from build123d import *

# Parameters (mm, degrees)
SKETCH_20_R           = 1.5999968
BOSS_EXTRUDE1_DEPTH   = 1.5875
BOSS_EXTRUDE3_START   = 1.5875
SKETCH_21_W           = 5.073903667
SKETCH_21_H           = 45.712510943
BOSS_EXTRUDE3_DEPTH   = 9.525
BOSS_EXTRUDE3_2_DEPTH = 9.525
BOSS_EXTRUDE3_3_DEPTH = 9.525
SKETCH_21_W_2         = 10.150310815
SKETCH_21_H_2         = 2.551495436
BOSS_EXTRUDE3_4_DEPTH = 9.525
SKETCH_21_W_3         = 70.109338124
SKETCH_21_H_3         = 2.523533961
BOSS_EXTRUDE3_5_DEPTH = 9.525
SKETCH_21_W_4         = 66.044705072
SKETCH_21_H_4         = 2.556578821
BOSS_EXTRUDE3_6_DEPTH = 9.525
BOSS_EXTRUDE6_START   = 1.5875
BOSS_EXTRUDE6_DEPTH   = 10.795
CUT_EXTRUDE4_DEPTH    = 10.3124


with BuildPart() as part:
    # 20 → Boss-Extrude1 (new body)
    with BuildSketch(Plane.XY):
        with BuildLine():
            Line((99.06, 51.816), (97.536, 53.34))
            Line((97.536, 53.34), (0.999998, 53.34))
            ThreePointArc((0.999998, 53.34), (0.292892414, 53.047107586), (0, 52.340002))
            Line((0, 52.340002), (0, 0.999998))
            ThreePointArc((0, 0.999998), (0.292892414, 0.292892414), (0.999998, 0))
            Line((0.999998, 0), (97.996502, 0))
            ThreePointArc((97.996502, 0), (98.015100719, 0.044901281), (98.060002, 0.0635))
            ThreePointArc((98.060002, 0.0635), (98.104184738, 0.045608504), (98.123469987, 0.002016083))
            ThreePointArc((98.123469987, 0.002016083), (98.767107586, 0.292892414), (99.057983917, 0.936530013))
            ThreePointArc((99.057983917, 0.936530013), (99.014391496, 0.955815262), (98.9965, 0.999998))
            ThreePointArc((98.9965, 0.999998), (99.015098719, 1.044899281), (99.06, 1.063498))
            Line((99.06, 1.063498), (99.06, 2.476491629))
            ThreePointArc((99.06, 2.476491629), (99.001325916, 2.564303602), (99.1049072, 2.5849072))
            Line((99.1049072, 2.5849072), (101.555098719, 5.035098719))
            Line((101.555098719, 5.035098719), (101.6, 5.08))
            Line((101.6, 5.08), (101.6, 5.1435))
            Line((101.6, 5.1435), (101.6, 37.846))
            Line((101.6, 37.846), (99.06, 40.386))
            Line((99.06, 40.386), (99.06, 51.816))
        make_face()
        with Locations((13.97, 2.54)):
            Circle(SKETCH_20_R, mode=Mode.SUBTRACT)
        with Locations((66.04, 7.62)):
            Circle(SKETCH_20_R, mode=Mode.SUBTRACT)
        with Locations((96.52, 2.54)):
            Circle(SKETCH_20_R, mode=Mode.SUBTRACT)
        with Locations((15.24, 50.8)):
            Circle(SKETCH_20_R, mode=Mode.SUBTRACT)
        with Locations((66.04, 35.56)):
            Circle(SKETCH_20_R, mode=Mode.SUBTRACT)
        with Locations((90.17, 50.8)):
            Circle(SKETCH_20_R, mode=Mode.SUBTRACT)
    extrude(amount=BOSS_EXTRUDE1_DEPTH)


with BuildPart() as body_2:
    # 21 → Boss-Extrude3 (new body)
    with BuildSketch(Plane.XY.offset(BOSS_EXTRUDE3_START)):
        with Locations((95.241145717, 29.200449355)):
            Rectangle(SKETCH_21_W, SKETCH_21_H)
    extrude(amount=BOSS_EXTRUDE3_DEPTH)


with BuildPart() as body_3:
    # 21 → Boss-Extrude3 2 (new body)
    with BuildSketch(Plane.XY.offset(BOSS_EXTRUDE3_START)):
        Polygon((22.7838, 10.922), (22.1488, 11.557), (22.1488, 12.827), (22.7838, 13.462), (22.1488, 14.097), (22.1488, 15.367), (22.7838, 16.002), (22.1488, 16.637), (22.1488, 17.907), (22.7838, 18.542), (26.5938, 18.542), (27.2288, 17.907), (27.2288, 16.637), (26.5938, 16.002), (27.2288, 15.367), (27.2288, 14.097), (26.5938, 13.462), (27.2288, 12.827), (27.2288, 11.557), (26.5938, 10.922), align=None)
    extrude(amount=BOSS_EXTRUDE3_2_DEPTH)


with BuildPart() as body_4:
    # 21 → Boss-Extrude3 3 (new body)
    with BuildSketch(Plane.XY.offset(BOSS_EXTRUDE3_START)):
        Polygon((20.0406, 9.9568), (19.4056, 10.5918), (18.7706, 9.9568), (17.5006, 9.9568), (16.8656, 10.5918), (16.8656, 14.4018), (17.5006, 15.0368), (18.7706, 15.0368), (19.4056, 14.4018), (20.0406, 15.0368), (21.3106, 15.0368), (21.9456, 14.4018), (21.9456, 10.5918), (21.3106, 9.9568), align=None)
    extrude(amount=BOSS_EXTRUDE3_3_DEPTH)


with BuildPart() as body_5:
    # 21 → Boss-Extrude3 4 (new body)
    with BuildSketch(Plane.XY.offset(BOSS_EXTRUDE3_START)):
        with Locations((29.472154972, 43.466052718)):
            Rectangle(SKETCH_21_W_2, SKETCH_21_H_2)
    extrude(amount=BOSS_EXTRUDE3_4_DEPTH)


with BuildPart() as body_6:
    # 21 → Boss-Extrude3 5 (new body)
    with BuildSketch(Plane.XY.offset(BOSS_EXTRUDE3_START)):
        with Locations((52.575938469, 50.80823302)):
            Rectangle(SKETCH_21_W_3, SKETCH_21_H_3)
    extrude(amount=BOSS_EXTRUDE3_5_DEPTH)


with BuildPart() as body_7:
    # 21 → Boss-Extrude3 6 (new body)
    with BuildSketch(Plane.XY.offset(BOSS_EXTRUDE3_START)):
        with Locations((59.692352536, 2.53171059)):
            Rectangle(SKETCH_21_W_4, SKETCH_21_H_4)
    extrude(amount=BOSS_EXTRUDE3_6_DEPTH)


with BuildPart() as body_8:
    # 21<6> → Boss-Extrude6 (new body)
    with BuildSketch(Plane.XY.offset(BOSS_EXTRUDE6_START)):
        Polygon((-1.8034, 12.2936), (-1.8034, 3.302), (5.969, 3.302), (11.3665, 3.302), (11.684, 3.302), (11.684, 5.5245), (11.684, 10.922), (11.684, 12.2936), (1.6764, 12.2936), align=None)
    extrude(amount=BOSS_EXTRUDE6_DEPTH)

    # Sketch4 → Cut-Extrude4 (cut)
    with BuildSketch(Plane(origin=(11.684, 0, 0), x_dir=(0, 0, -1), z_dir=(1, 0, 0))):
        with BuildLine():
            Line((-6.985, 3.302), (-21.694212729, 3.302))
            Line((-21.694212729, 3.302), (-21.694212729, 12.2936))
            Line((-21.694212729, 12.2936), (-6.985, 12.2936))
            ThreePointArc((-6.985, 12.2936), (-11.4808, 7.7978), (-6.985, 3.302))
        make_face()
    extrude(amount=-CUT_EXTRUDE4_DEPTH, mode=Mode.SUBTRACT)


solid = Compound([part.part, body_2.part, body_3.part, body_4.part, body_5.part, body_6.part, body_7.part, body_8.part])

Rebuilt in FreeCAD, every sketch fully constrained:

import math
import FreeCAD as App
import Part
import Sketcher
Q = App.Units.Quantity


def add_polygon(sketch, points):
    """Adds a closed chain of lines whose ends are joined by coincident constraints."""
    first, n = sketch.GeometryCount, len(points)
    for a, b in zip(points, points[1:] + points[:1]):
        sketch.addGeometry(Part.LineSegment(App.Vector(*a, 0), App.Vector(*b, 0)), False)
    for i in range(n):
        sketch.addConstraint(Sketcher.Constraint("Coincident", first + i, 2, first + (i + 1) % n, 1))

doc = App.newDocument("Part")
body = doc.addObject("PartDesign::Body", "Body")

sketch1 = body.newObject("Sketcher::SketchObject", "Sketch")
sketch1.AttachmentSupport = (doc.getObject("XY_Plane"), [""])
sketch1.MapMode = "FlatFace"
sketch1.addGeometry(Part.LineSegment(App.Vector(99.06, 51.816, 0), App.Vector(97.536, 53.34, 0)), False)
sketch1.addGeometry(Part.LineSegment(App.Vector(97.536, 53.34, 0), App.Vector(0.999998, 53.34, 0)), False)
sketch1.addGeometry(Part.ArcOfCircle(Part.Circle(App.Vector(0.999997, 52.340003, 0), App.Vector(0, 0, 1), 0.999997), math.radians(89.999957), math.radians(180.000043)), False)
sketch1.addGeometry(Part.LineSegment(App.Vector(0, 52.340002, 0), App.Vector(0, 0.999998, 0)), False)
sketch1.addGeometry(Part.ArcOfCircle(Part.Circle(App.Vector(0.999997, 0.999997, 0), App.Vector(0, 0, 1), 0.999997), math.radians(179.999957), math.radians(270.000043)), False)
sketch1.addGeometry(Part.LineSegment(App.Vector(0.999998, 0, 0), App.Vector(97.996502, 0, 0)), False)
sketch1.addGeometry(Part.ArcOfCircle(Part.Circle(App.Vector(98.060002, 0, 0), App.Vector(0, 0, 1), 0.0635), math.radians(89.999999), math.radians(180.000001)), False)
sketch1.addGeometry(Part.ArcOfCircle(Part.Circle(App.Vector(98.060002, 0, 0), App.Vector(0, 0, 1), 0.0635), math.radians(1.819409), math.radians(90)), False)
sketch1.addGeometry(Part.ArcOfCircle(Part.Circle(App.Vector(98.060003, 0.999997, 0), App.Vector(0, 0, 1), 0.999997), math.radians(-86.361139), math.radians(-3.638861)), False)
sketch1.addGeometry(Part.ArcOfCircle(Part.Circle(App.Vector(99.06, 0.999998, 0), App.Vector(0, 0, 1), 0.0635), math.radians(180), math.radians(268.180591)), False)
sketch1.addGeometry(Part.ArcOfCircle(Part.Circle(App.Vector(99.06, 0.999998, 0), App.Vector(0, 0, 1), 0.0635), math.radians(89.999999), math.radians(180.000001)), False)
sketch1.addGeometry(Part.LineSegment(App.Vector(99.06, 1.063498, 0), App.Vector(99.06, 2.476492, 0)), False)
sketch1.addGeometry(Part.ArcOfCircle(Part.Circle(App.Vector(99.06, 2.54, 0), App.Vector(0, 0, 1), 0.063508), math.radians(45), math.radians(270)), False)
sketch1.addGeometry(Part.LineSegment(App.Vector(99.104907, 2.584907, 0), App.Vector(101.6, 5.08, 0)), False)
sketch1.addGeometry(Part.LineSegment(App.Vector(101.6, 5.08, 0), App.Vector(101.6, 37.846, 0)), False)
sketch1.addGeometry(Part.LineSegment(App.Vector(101.6, 37.846, 0), App.Vector(99.06, 40.386, 0)), False)
sketch1.addGeometry(Part.LineSegment(App.Vector(99.06, 40.386, 0), App.Vector(99.06, 51.816, 0)), False)
sketch1.addGeometry(Part.Circle(App.Vector(13.97, 2.54, 0), App.Vector(0, 0, 1), 1.599997), False)
sketch1.addGeometry(Part.Circle(App.Vector(66.04, 7.62, 0), App.Vector(0, 0, 1), 1.599997), False)
sketch1.addGeometry(Part.Circle(App.Vector(96.52, 2.54, 0), App.Vector(0, 0, 1), 1.599997), False)
sketch1.addGeometry(Part.Circle(App.Vector(15.24, 50.8, 0), App.Vector(0, 0, 1), 1.599997), False)
sketch1.addGeometry(Part.Circle(App.Vector(66.04, 35.56, 0), App.Vector(0, 0, 1), 1.599997), False)
sketch1.addGeometry(Part.Circle(App.Vector(90.17, 50.8, 0), App.Vector(0, 0, 1), 1.599997), False)
sketch1.addConstraint(Sketcher.Constraint("Coincident", 0, 2, 1, 1))
sketch1.addConstraint(Sketcher.Constraint("Tangent", 1, 2, 2, 1))
sketch1.addConstraint(Sketcher.Constraint("Tangent", 2, 2, 3, 1))
sketch1.addConstraint(Sketcher.Constraint("Tangent", 3, 2, 4, 1))
sketch1.addConstraint(Sketcher.Constraint("Tangent", 4, 2, 5, 1))
sketch1.addConstraint(Sketcher.Constraint("Coincident", 5, 2, 6, 2))
sketch1.addConstraint(Sketcher.Constraint("Tangent", 6, 1, 7, 2))
sketch1.addConstraint(Sketcher.Constraint("Coincident", 7, 1, 8, 1))
sketch1.addConstraint(Sketcher.Constraint("Coincident", 8, 2, 9, 2))
sketch1.addConstraint(Sketcher.Constraint("Tangent", 9, 1, 10, 2))
sketch1.addConstraint(Sketcher.Constraint("Coincident", 10, 1, 11, 1))
sketch1.addConstraint(Sketcher.Constraint("Coincident", 11, 2, 12, 2))
sketch1.addConstraint(Sketcher.Constraint("Coincident", 12, 1, 13, 1))
sketch1.addConstraint(Sketcher.Constraint("Coincident", 13, 2, 14, 1))
sketch1.addConstraint(Sketcher.Constraint("Coincident", 14, 2, 15, 1))
sketch1.addConstraint(Sketcher.Constraint("Coincident", 15, 2, 16, 1))
sketch1.addConstraint(Sketcher.Constraint("Coincident", 16, 2, 0, 1))
sketch1.addConstraint(Sketcher.Constraint("Horizontal", 1))
sketch1.addConstraint(Sketcher.Constraint("Vertical", 3))
sketch1.addConstraint(Sketcher.Constraint("Horizontal", 5))
sketch1.addConstraint(Sketcher.Constraint("Vertical", 11))
sketch1.addConstraint(Sketcher.Constraint("Vertical", 14))
sketch1.addConstraint(Sketcher.Constraint("Vertical", 16))
sketch1.addConstraint(Sketcher.Constraint("Equal", 2, 4))
sketch1.addConstraint(Sketcher.Constraint("Equal", 6, 7))
sketch1.addConstraint(Sketcher.Constraint("Equal", 4, 8))
sketch1.addConstraint(Sketcher.Constraint("Equal", 7, 9))
sketch1.addConstraint(Sketcher.Constraint("Equal", 9, 10))
sketch1.addConstraint(Sketcher.Constraint("Equal", 17, 18))
sketch1.addConstraint(Sketcher.Constraint("Equal", 18, 19))
sketch1.addConstraint(Sketcher.Constraint("Equal", 19, 20))
sketch1.addConstraint(Sketcher.Constraint("Equal", 20, 21))
sketch1.addConstraint(Sketcher.Constraint("Equal", 21, 22))
sketch1.addConstraint(Sketcher.Constraint("PointOnObject", 6, 3, -1))
sketch1.addConstraint(Sketcher.Constraint("PointOnObject", 2, 2, -2))
sketch1.addConstraint(Sketcher.Constraint("PointOnObject", 4, 2, -1))
sketch1.addConstraint(Sketcher.Constraint("Perpendicular", 0, 13))
sketch1.addConstraint(Sketcher.Constraint("Perpendicular", 13, 15))
sketch1.addConstraint(Sketcher.Constraint("Horizontal", 4, 3, 8, 3))
sketch1.addConstraint(Sketcher.Constraint("Horizontal", 8, 3, 9, 3))
sketch1.addConstraint(Sketcher.Constraint("Horizontal", 12, 3, 17, 3))
sketch1.addConstraint(Sketcher.Constraint("Horizontal", 17, 3, 19, 3))
sketch1.addConstraint(Sketcher.Constraint("Horizontal", 20, 3, 22, 3))
sketch1.addConstraint(Sketcher.Constraint("Horizontal", 3, 2, 9, 1))
sketch1.addConstraint(Sketcher.Constraint("Vertical", 7, 3, 8, 3))
sketch1.addConstraint(Sketcher.Constraint("Vertical", 10, 3, 12, 3))
sketch1.addConstraint(Sketcher.Constraint("Vertical", 18, 3, 21, 3))
sketch1.addConstraint(Sketcher.Constraint("Vertical", 8, 3, 6, 1))
sketch1.addConstraint(Sketcher.Constraint("Vertical", 12, 3, 10, 1))
sketch1.addConstraint(Sketcher.Constraint("Vertical", 11, 2, 15, 2))
sketch1.addConstraint(Sketcher.Constraint("DistanceY", -1, 1, 20, 3, Q("2 in")))
sketch1.addConstraint(Sketcher.Constraint("DistanceX", -1, 1, 13, 2, Q("4 in")))
sketch1.addConstraint(Sketcher.Constraint("Angle", 0, Q("135 deg")))
sketch1.addConstraint(Sketcher.Constraint("DistanceX", 20, 3, 18, 3, Q("2 in")))
sketch1.addConstraint(Sketcher.Constraint("DistanceY", 19, 3, 0, 2, Q("2 in")))
sketch1.addConstraint(Sketcher.Constraint("DistanceY", 14, 1, 14, 2, Q("1.29 in")))
sketch1.addConstraint(Sketcher.Constraint("DistanceY", 16, 1, 16, 2, Q("0.45 in")))
sketch1.addConstraint(Sketcher.Constraint("DistanceX", -1, 1, 9, 3, Q("3.9 in")))
sketch1.addConstraint(Sketcher.Constraint("DistanceY", -1, 1, 12, 3, Q("0.1 in")))
sketch1.addConstraint(Sketcher.Constraint("DistanceX", -1, 1, 18, 3, Q("2.6 in")))
sketch1.addConstraint(Sketcher.Constraint("DistanceY", -1, 1, 18, 3, Q("0.3 in")))
sketch1.addConstraint(Sketcher.Constraint("DistanceX", -1, 1, 19, 3, Q("3.8 in")))
sketch1.addConstraint(Sketcher.Constraint("DistanceY", -1, 1, 21, 3, Q("1.4 in")))
sketch1.addConstraint(Sketcher.Constraint("DistanceY", -1, 1, 13, 2, Q("0.2 in")))
sketch1.addConstraint(Sketcher.Constraint("Radius", 6, Q("0.0025 in")))
sketch1.addConstraint(Sketcher.Constraint("DistanceX", -1, 1, 17, 3, Q("0.55 in")))
sketch1.addConstraint(Sketcher.Constraint("DistanceX", -1, 1, 22, 3, Q("3.55 in")))
sketch1.addConstraint(Sketcher.Constraint("Radius", 12, 0.063508))
sketch1.addConstraint(Sketcher.Constraint("Diameter", 17, 3.199994))
sketch1.addConstraint(Sketcher.Constraint("DistanceX", 1, 2, 1, 1, 96.536002))
sketch1.addConstraint(Sketcher.Constraint("DistanceX", -1, 1, 6, 3, 98.060002))
pad1 = body.newObject("PartDesign::Pad", "Pad")
pad1.Profile = sketch1
pad1.Length = Q("0.0625 in")
body2 = doc.addObject("PartDesign::Body", "Body001")

sketch2 = body2.newObject("Sketcher::SketchObject", "Sketch001")
sketch2.AttachmentSupport = (doc.getObject("XY_Plane001"), [""])
sketch2.MapMode = "FlatFace"
sketch2.AttachmentOffset = App.Placement(App.Vector(0, 0, 0.0625 * 25.4), App.Rotation())
add_polygon(sketch2, [(92.704194, 52.056705), (92.704194, 6.344194), (97.778098, 6.344194), (97.778098, 52.056705)])
sketch2.addConstraint(Sketcher.Constraint("Vertical", 0))
sketch2.addConstraint(Sketcher.Constraint("Horizontal", 1))
sketch2.addConstraint(Sketcher.Constraint("Vertical", 2))
sketch2.addConstraint(Sketcher.Constraint("Horizontal", 3))
sketch2.addConstraint(Sketcher.Constraint("DistanceY", 0, 2, 0, 1, 45.712511))
sketch2.addConstraint(Sketcher.Constraint("DistanceX", 1, 1, 1, 2, 5.073904))
sketch2.addConstraint(Sketcher.Constraint("DistanceX", -1, 1, 0, 2, 92.704194))
sketch2.addConstraint(Sketcher.Constraint("DistanceY", -1, 1, 0, 2, 6.344194))
pad2 = body2.newObject("PartDesign::Pad", "Pad001")
pad2.Profile = sketch2
pad2.Length = Q("0.375 in")
body3 = doc.addObject("PartDesign::Body", "Body002")

sketch3 = body3.newObject("Sketcher::SketchObject", "Sketch002")
sketch3.AttachmentSupport = (doc.getObject("XY_Plane002"), [""])
sketch3.MapMode = "FlatFace"
sketch3.AttachmentOffset = App.Placement(App.Vector(0, 0, 0.0625 * 25.4), App.Rotation())
add_polygon(sketch3, [(22.1488, 11.557), (22.7838, 10.922), (26.5938, 10.922), (27.2288, 11.557), (27.2288, 12.827), (26.5938, 13.462), (27.2288, 14.097), (27.2288, 15.367), (26.5938, 16.002), (27.2288, 16.637), (27.2288, 17.907), (26.5938, 18.542), (22.7838, 18.542), (22.1488, 17.907), (22.1488, 16.637), (22.7838, 16.002), (22.1488, 15.367), (22.1488, 14.097), (22.7838, 13.462), (22.1488, 12.827)])
sketch3.addConstraint(Sketcher.Constraint("Horizontal", 1))
sketch3.addConstraint(Sketcher.Constraint("Vertical", 3))
sketch3.addConstraint(Sketcher.Constraint("Vertical", 6))
sketch3.addConstraint(Sketcher.Constraint("Vertical", 9))
sketch3.addConstraint(Sketcher.Constraint("Horizontal", 11))
sketch3.addConstraint(Sketcher.Constraint("Vertical", 13))
sketch3.addConstraint(Sketcher.Constraint("Vertical", 16))
sketch3.addConstraint(Sketcher.Constraint("Vertical", 19))
sketch3.addConstraint(Sketcher.Constraint("Perpendicular", 0, 2))
sketch3.addConstraint(Sketcher.Constraint("Perpendicular", 2, 4))
sketch3.addConstraint(Sketcher.Constraint("Perpendicular", 4, 5))
sketch3.addConstraint(Sketcher.Constraint("Perpendicular", 5, 7))
sketch3.addConstraint(Sketcher.Constraint("Perpendicular", 7, 8))
sketch3.addConstraint(Sketcher.Constraint("Perpendicular", 8, 10))
sketch3.addConstraint(Sketcher.Constraint("Perpendicular", 10, 12))
sketch3.addConstraint(Sketcher.Constraint("Perpendicular", 12, 14))
sketch3.addConstraint(Sketcher.Constraint("Perpendicular", 14, 15))
sketch3.addConstraint(Sketcher.Constraint("Perpendicular", 15, 17))
sketch3.addConstraint(Sketcher.Constraint("Perpendicular", 17, 18))
sketch3.addConstraint(Sketcher.Constraint("Horizontal", 9, 2, 12, 2))
sketch3.addConstraint(Sketcher.Constraint("Horizontal", 8, 2, 13, 2))
sketch3.addConstraint(Sketcher.Constraint("Horizontal", 7, 2, 14, 2))
sketch3.addConstraint(Sketcher.Constraint("Horizontal", 6, 2, 15, 2))
sketch3.addConstraint(Sketcher.Constraint("Horizontal", 5, 2, 16, 2))
sketch3.addConstraint(Sketcher.Constraint("Horizontal", 4, 2, 17, 2))
sketch3.addConstraint(Sketcher.Constraint("Horizontal", 3, 2, 18, 2))
sketch3.addConstraint(Sketcher.Constraint("Horizontal", 2, 2, 19, 2))
sketch3.addConstraint(Sketcher.Constraint("Vertical", 1, 2, 4, 2))
sketch3.addConstraint(Sketcher.Constraint("Vertical", 3, 2, 5, 2))
sketch3.addConstraint(Sketcher.Constraint("Vertical", 4, 2, 7, 2))
sketch3.addConstraint(Sketcher.Constraint("Vertical", 6, 2, 8, 2))
sketch3.addConstraint(Sketcher.Constraint("Vertical", 7, 2, 10, 2))
sketch3.addConstraint(Sketcher.Constraint("Vertical", 0, 2, 11, 2))
sketch3.addConstraint(Sketcher.Constraint("Equal", 3, 6))
sketch3.addConstraint(Sketcher.Constraint("Equal", 6, 9))
sketch3.addConstraint(Sketcher.Constraint("DistanceX", 1, 1, 1, 2, Q("0.15 in")))
sketch3.addConstraint(Sketcher.Constraint("DistanceY", 3, 1, 3, 2, Q("0.05 in")))
sketch3.addConstraint(Sketcher.Constraint("DistanceY", 1, 2, 4, 2, Q("0.1 in")))
sketch3.addConstraint(Sketcher.Constraint("DistanceY", -1, 1, 0, 2, Q("0.43 in")))
sketch3.addConstraint(Sketcher.Constraint("DistanceX", -1, 1, 0, 2, Q("0.897 in")))
pad3 = body3.newObject("PartDesign::Pad", "Pad002")
pad3.Profile = sketch3
pad3.Length = Q("0.375 in")
body4 = doc.addObject("PartDesign::Body", "Body003")

sketch4 = body4.newObject("Sketcher::SketchObject", "Sketch003")
sketch4.AttachmentSupport = (doc.getObject("XY_Plane003"), [""])
sketch4.MapMode = "FlatFace"
sketch4.AttachmentOffset = App.Placement(App.Vector(0, 0, 0.0625 * 25.4), App.Rotation())
add_polygon(sketch4, [(19.4056, 10.5918), (20.0406, 9.9568), (21.3106, 9.9568), (21.9456, 10.5918), (21.9456, 14.4018), (21.3106, 15.0368), (20.0406, 15.0368), (19.4056, 14.4018), (18.7706, 15.0368), (17.5006, 15.0368), (16.8656, 14.4018), (16.8656, 10.5918), (17.5006, 9.9568), (18.7706, 9.9568)])
sketch4.addConstraint(Sketcher.Constraint("Horizontal", 1))
sketch4.addConstraint(Sketcher.Constraint("Vertical", 3))
sketch4.addConstraint(Sketcher.Constraint("Horizontal", 5))
sketch4.addConstraint(Sketcher.Constraint("Horizontal", 8))
sketch4.addConstraint(Sketcher.Constraint("Vertical", 10))
sketch4.addConstraint(Sketcher.Constraint("Horizontal", 12))
sketch4.addConstraint(Sketcher.Constraint("Perpendicular", 0, 2))
sketch4.addConstraint(Sketcher.Constraint("Perpendicular", 2, 4))
sketch4.addConstraint(Sketcher.Constraint("Perpendicular", 4, 6))
sketch4.addConstraint(Sketcher.Constraint("Perpendicular", 6, 7))
sketch4.addConstraint(Sketcher.Constraint("Perpendicular", 7, 9))
sketch4.addConstraint(Sketcher.Constraint("Perpendicular", 9, 11))
sketch4.addConstraint(Sketcher.Constraint("Perpendicular", 11, 13))
sketch4.addConstraint(Sketcher.Constraint("Horizontal", 3, 2, 6, 2))
sketch4.addConstraint(Sketcher.Constraint("Horizontal", 5, 2, 7, 2))
sketch4.addConstraint(Sketcher.Constraint("Horizontal", 6, 2, 9, 2))
sketch4.addConstraint(Sketcher.Constraint("Horizontal", 2, 2, 10, 2))
sketch4.addConstraint(Sketcher.Constraint("Horizontal", 1, 2, 11, 2))
sketch4.addConstraint(Sketcher.Constraint("Horizontal", 10, 2, 13, 2))
sketch4.addConstraint(Sketcher.Constraint("Vertical", 1, 2, 4, 2))
sketch4.addConstraint(Sketcher.Constraint("Vertical", 0, 2, 5, 2))
sketch4.addConstraint(Sketcher.Constraint("Vertical", 8, 2, 11, 2))
sketch4.addConstraint(Sketcher.Constraint("Equal", 5, 8))
sketch4.addConstraint(Sketcher.Constraint("DistanceX", 1, 1, 1, 2, Q("0.05 in")))
sketch4.addConstraint(Sketcher.Constraint("DistanceY", 3, 1, 3, 2, Q("0.15 in")))
sketch4.addConstraint(Sketcher.Constraint("DistanceY", 1, 2, 4, 2, Q("0.2 in")))
sketch4.addConstraint(Sketcher.Constraint("DistanceX", -1, 1, 0, 2, Q("0.789 in")))
sketch4.addConstraint(Sketcher.Constraint("DistanceY", -1, 1, 0, 2, Q("0.392 in")))
pad4 = body4.newObject("PartDesign::Pad", "Pad003")
pad4.Profile = sketch4
pad4.Length = Q("0.375 in")
body5 = doc.addObject("PartDesign::Body", "Body004")

sketch5 = body5.newObject("Sketcher::SketchObject", "Sketch004")
sketch5.AttachmentSupport = (doc.getObject("XY_Plane004"), [""])
sketch5.MapMode = "FlatFace"
sketch5.AttachmentOffset = App.Placement(App.Vector(0, 0, 0.0625 * 25.4), App.Rotation())
add_polygon(sketch5, [(24.397, 44.7418), (24.397, 42.190305), (34.54731, 42.190305), (34.54731, 44.7418)])
sketch5.addConstraint(Sketcher.Constraint("Vertical", 0))
sketch5.addConstraint(Sketcher.Constraint("Horizontal", 1))
sketch5.addConstraint(Sketcher.Constraint("Vertical", 2))
sketch5.addConstraint(Sketcher.Constraint("Horizontal", 3))
sketch5.addConstraint(Sketcher.Constraint("DistanceX", 1, 1, 1, 2, 10.150311))
sketch5.addConstraint(Sketcher.Constraint("DistanceX", -1, 1, 0, 2, 24.397))
sketch5.addConstraint(Sketcher.Constraint("DistanceY", -1, 1, 2, 2, 44.7418))
sketch5.addConstraint(Sketcher.Constraint("DistanceY", 0, 2, 0, 1, 2.551495))
pad5 = body5.newObject("PartDesign::Pad", "Pad004")
pad5.Profile = sketch5
pad5.Length = Q("0.375 in")
body6 = doc.addObject("PartDesign::Body", "Body005")

sketch6 = body6.newObject("Sketcher::SketchObject", "Sketch005")
sketch6.AttachmentSupport = (doc.getObject("XY_Plane005"), [""])
sketch6.MapMode = "FlatFace"
sketch6.AttachmentOffset = App.Placement(App.Vector(0, 0, 0.0625 * 25.4), App.Rotation())
add_polygon(sketch6, [(17.521269, 52.07), (17.521269, 49.546466), (87.630608, 49.546466), (87.630608, 52.07)])
sketch6.addConstraint(Sketcher.Constraint("Vertical", 0))
sketch6.addConstraint(Sketcher.Constraint("Horizontal", 1))
sketch6.addConstraint(Sketcher.Constraint("Vertical", 2))
sketch6.addConstraint(Sketcher.Constraint("Horizontal", 3))
sketch6.addConstraint(Sketcher.Constraint("DistanceY", -1, 1, 2, 2, Q("2.05 in")))
sketch6.addConstraint(Sketcher.Constraint("DistanceX", 1, 1, 1, 2, 70.109338))
sketch6.addConstraint(Sketcher.Constraint("DistanceY", 0, 2, 0, 1, 2.523534))
sketch6.addConstraint(Sketcher.Constraint("DistanceX", -1, 1, 0, 2, 17.521269))
pad6 = body6.newObject("PartDesign::Pad", "Pad005")
pad6.Profile = sketch6
pad6.Length = Q("0.375 in")
body7 = doc.addObject("PartDesign::Body", "Body006")

sketch7 = body7.newObject("Sketcher::SketchObject", "Sketch006")
sketch7.AttachmentSupport = (doc.getObject("XY_Plane006"), [""])
sketch7.MapMode = "FlatFace"
sketch7.AttachmentOffset = App.Placement(App.Vector(0, 0, 0.0625 * 25.4), App.Rotation())
add_polygon(sketch7, [(26.67, 3.81), (26.67, 1.253421), (92.714705, 1.253421), (92.714705, 3.81)])
sketch7.addConstraint(Sketcher.Constraint("Vertical", 0))
sketch7.addConstraint(Sketcher.Constraint("Horizontal", 1))
sketch7.addConstraint(Sketcher.Constraint("Vertical", 2))
sketch7.addConstraint(Sketcher.Constraint("Horizontal", 3))
sketch7.addConstraint(Sketcher.Constraint("DistanceX", -1, 1, 0, 2, Q("1.05 in")))
sketch7.addConstraint(Sketcher.Constraint("DistanceY", -1, 1, 2, 2, Q("0.15 in")))
sketch7.addConstraint(Sketcher.Constraint("DistanceY", 0, 2, 0, 1, 2.556579))
sketch7.addConstraint(Sketcher.Constraint("DistanceX", 1, 1, 1, 2, 66.044705))
pad7 = body7.newObject("PartDesign::Pad", "Pad006")
pad7.Profile = sketch7
pad7.Length = Q("0.375 in")
body8 = doc.addObject("PartDesign::Body", "Body007")

sketch8 = body8.newObject("Sketcher::SketchObject", "Sketch007")
sketch8.AttachmentSupport = (doc.getObject("XY_Plane007"), [""])
sketch8.MapMode = "FlatFace"
sketch8.AttachmentOffset = App.Placement(App.Vector(0, 0, 0.0625 * 25.4), App.Rotation())
add_polygon(sketch8, [(-1.8034, 12.2936), (-1.8034, 3.302), (11.684, 3.302), (11.684, 12.2936)])
sketch8.addConstraint(Sketcher.Constraint("Vertical", 0))
sketch8.addConstraint(Sketcher.Constraint("Horizontal", 1))
sketch8.addConstraint(Sketcher.Constraint("Vertical", 2))
sketch8.addConstraint(Sketcher.Constraint("Horizontal", 3))
sketch8.addConstraint(Sketcher.Constraint("DistanceX", 1, 1, 1, 2, Q("0.531 in")))
sketch8.addConstraint(Sketcher.Constraint("DistanceY", 0, 2, 0, 1, Q("0.354 in")))
sketch8.addConstraint(Sketcher.Constraint("DistanceY", -1, 1, 0, 2, Q("0.13 in")))
sketch8.addConstraint(Sketcher.Constraint("DistanceX", -1, 1, 1, 2, Q("0.46 in")))
pad8 = body8.newObject("PartDesign::Pad", "Pad007")
pad8.Profile = sketch8
pad8.Length = Q("0.425 in")

sketch9 = body8.newObject("Sketcher::SketchObject", "Sketch008")
sketch9.AttachmentSupport = (doc.getObject("YZ_Plane007"), [""])
sketch9.MapMode = "FlatFace"
sketch9.AttachmentOffset = App.Placement(App.Vector(0, 0, 0.46 * 25.4), App.Rotation())
sketch9.addGeometry(Part.LineSegment(App.Vector(3.302, 21.694213, 0), App.Vector(3.302, 6.985, 0)), False)
sketch9.addGeometry(Part.ArcOfCircle(Part.Circle(App.Vector(7.7978, 6.985, 0), App.Vector(0, 0, 1), 4.4958), math.radians(0), math.radians(180)), False)
sketch9.addGeometry(Part.LineSegment(App.Vector(12.2936, 6.985, 0), App.Vector(12.2936, 21.694213, 0)), False)
sketch9.addGeometry(Part.LineSegment(App.Vector(12.2936, 21.694213, 0), App.Vector(3.302, 21.694213, 0)), False)
sketch9.addConstraint(Sketcher.Constraint("Tangent", 0, 2, 1, 2))
sketch9.addConstraint(Sketcher.Constraint("Tangent", 1, 1, 2, 1))
sketch9.addConstraint(Sketcher.Constraint("Coincident", 2, 2, 3, 1))
sketch9.addConstraint(Sketcher.Constraint("Coincident", 3, 2, 0, 1))
sketch9.addConstraint(Sketcher.Constraint("Vertical", 0))
sketch9.addConstraint(Sketcher.Constraint("Vertical", 2))
sketch9.addConstraint(Sketcher.Constraint("Horizontal", 3))
sketch9.addConstraint(Sketcher.Constraint("Radius", 1, Q("0.177 in")))
sketch9.addConstraint(Sketcher.Constraint("DistanceX", -1, 1, 0, 2, Q("0.13 in")))
sketch9.addConstraint(Sketcher.Constraint("DistanceY", -1, 1, 1, 3, Q("0.275 in")))
sketch9.addConstraint(Sketcher.Constraint("DistanceY", 0, 2, 0, 1, 14.709213))
pocket1 = body8.newObject("PartDesign::Pocket", "Pocket")
pocket1.Profile = sketch9
pocket1.Length = Q("0.406 in")

doc.recompute()
